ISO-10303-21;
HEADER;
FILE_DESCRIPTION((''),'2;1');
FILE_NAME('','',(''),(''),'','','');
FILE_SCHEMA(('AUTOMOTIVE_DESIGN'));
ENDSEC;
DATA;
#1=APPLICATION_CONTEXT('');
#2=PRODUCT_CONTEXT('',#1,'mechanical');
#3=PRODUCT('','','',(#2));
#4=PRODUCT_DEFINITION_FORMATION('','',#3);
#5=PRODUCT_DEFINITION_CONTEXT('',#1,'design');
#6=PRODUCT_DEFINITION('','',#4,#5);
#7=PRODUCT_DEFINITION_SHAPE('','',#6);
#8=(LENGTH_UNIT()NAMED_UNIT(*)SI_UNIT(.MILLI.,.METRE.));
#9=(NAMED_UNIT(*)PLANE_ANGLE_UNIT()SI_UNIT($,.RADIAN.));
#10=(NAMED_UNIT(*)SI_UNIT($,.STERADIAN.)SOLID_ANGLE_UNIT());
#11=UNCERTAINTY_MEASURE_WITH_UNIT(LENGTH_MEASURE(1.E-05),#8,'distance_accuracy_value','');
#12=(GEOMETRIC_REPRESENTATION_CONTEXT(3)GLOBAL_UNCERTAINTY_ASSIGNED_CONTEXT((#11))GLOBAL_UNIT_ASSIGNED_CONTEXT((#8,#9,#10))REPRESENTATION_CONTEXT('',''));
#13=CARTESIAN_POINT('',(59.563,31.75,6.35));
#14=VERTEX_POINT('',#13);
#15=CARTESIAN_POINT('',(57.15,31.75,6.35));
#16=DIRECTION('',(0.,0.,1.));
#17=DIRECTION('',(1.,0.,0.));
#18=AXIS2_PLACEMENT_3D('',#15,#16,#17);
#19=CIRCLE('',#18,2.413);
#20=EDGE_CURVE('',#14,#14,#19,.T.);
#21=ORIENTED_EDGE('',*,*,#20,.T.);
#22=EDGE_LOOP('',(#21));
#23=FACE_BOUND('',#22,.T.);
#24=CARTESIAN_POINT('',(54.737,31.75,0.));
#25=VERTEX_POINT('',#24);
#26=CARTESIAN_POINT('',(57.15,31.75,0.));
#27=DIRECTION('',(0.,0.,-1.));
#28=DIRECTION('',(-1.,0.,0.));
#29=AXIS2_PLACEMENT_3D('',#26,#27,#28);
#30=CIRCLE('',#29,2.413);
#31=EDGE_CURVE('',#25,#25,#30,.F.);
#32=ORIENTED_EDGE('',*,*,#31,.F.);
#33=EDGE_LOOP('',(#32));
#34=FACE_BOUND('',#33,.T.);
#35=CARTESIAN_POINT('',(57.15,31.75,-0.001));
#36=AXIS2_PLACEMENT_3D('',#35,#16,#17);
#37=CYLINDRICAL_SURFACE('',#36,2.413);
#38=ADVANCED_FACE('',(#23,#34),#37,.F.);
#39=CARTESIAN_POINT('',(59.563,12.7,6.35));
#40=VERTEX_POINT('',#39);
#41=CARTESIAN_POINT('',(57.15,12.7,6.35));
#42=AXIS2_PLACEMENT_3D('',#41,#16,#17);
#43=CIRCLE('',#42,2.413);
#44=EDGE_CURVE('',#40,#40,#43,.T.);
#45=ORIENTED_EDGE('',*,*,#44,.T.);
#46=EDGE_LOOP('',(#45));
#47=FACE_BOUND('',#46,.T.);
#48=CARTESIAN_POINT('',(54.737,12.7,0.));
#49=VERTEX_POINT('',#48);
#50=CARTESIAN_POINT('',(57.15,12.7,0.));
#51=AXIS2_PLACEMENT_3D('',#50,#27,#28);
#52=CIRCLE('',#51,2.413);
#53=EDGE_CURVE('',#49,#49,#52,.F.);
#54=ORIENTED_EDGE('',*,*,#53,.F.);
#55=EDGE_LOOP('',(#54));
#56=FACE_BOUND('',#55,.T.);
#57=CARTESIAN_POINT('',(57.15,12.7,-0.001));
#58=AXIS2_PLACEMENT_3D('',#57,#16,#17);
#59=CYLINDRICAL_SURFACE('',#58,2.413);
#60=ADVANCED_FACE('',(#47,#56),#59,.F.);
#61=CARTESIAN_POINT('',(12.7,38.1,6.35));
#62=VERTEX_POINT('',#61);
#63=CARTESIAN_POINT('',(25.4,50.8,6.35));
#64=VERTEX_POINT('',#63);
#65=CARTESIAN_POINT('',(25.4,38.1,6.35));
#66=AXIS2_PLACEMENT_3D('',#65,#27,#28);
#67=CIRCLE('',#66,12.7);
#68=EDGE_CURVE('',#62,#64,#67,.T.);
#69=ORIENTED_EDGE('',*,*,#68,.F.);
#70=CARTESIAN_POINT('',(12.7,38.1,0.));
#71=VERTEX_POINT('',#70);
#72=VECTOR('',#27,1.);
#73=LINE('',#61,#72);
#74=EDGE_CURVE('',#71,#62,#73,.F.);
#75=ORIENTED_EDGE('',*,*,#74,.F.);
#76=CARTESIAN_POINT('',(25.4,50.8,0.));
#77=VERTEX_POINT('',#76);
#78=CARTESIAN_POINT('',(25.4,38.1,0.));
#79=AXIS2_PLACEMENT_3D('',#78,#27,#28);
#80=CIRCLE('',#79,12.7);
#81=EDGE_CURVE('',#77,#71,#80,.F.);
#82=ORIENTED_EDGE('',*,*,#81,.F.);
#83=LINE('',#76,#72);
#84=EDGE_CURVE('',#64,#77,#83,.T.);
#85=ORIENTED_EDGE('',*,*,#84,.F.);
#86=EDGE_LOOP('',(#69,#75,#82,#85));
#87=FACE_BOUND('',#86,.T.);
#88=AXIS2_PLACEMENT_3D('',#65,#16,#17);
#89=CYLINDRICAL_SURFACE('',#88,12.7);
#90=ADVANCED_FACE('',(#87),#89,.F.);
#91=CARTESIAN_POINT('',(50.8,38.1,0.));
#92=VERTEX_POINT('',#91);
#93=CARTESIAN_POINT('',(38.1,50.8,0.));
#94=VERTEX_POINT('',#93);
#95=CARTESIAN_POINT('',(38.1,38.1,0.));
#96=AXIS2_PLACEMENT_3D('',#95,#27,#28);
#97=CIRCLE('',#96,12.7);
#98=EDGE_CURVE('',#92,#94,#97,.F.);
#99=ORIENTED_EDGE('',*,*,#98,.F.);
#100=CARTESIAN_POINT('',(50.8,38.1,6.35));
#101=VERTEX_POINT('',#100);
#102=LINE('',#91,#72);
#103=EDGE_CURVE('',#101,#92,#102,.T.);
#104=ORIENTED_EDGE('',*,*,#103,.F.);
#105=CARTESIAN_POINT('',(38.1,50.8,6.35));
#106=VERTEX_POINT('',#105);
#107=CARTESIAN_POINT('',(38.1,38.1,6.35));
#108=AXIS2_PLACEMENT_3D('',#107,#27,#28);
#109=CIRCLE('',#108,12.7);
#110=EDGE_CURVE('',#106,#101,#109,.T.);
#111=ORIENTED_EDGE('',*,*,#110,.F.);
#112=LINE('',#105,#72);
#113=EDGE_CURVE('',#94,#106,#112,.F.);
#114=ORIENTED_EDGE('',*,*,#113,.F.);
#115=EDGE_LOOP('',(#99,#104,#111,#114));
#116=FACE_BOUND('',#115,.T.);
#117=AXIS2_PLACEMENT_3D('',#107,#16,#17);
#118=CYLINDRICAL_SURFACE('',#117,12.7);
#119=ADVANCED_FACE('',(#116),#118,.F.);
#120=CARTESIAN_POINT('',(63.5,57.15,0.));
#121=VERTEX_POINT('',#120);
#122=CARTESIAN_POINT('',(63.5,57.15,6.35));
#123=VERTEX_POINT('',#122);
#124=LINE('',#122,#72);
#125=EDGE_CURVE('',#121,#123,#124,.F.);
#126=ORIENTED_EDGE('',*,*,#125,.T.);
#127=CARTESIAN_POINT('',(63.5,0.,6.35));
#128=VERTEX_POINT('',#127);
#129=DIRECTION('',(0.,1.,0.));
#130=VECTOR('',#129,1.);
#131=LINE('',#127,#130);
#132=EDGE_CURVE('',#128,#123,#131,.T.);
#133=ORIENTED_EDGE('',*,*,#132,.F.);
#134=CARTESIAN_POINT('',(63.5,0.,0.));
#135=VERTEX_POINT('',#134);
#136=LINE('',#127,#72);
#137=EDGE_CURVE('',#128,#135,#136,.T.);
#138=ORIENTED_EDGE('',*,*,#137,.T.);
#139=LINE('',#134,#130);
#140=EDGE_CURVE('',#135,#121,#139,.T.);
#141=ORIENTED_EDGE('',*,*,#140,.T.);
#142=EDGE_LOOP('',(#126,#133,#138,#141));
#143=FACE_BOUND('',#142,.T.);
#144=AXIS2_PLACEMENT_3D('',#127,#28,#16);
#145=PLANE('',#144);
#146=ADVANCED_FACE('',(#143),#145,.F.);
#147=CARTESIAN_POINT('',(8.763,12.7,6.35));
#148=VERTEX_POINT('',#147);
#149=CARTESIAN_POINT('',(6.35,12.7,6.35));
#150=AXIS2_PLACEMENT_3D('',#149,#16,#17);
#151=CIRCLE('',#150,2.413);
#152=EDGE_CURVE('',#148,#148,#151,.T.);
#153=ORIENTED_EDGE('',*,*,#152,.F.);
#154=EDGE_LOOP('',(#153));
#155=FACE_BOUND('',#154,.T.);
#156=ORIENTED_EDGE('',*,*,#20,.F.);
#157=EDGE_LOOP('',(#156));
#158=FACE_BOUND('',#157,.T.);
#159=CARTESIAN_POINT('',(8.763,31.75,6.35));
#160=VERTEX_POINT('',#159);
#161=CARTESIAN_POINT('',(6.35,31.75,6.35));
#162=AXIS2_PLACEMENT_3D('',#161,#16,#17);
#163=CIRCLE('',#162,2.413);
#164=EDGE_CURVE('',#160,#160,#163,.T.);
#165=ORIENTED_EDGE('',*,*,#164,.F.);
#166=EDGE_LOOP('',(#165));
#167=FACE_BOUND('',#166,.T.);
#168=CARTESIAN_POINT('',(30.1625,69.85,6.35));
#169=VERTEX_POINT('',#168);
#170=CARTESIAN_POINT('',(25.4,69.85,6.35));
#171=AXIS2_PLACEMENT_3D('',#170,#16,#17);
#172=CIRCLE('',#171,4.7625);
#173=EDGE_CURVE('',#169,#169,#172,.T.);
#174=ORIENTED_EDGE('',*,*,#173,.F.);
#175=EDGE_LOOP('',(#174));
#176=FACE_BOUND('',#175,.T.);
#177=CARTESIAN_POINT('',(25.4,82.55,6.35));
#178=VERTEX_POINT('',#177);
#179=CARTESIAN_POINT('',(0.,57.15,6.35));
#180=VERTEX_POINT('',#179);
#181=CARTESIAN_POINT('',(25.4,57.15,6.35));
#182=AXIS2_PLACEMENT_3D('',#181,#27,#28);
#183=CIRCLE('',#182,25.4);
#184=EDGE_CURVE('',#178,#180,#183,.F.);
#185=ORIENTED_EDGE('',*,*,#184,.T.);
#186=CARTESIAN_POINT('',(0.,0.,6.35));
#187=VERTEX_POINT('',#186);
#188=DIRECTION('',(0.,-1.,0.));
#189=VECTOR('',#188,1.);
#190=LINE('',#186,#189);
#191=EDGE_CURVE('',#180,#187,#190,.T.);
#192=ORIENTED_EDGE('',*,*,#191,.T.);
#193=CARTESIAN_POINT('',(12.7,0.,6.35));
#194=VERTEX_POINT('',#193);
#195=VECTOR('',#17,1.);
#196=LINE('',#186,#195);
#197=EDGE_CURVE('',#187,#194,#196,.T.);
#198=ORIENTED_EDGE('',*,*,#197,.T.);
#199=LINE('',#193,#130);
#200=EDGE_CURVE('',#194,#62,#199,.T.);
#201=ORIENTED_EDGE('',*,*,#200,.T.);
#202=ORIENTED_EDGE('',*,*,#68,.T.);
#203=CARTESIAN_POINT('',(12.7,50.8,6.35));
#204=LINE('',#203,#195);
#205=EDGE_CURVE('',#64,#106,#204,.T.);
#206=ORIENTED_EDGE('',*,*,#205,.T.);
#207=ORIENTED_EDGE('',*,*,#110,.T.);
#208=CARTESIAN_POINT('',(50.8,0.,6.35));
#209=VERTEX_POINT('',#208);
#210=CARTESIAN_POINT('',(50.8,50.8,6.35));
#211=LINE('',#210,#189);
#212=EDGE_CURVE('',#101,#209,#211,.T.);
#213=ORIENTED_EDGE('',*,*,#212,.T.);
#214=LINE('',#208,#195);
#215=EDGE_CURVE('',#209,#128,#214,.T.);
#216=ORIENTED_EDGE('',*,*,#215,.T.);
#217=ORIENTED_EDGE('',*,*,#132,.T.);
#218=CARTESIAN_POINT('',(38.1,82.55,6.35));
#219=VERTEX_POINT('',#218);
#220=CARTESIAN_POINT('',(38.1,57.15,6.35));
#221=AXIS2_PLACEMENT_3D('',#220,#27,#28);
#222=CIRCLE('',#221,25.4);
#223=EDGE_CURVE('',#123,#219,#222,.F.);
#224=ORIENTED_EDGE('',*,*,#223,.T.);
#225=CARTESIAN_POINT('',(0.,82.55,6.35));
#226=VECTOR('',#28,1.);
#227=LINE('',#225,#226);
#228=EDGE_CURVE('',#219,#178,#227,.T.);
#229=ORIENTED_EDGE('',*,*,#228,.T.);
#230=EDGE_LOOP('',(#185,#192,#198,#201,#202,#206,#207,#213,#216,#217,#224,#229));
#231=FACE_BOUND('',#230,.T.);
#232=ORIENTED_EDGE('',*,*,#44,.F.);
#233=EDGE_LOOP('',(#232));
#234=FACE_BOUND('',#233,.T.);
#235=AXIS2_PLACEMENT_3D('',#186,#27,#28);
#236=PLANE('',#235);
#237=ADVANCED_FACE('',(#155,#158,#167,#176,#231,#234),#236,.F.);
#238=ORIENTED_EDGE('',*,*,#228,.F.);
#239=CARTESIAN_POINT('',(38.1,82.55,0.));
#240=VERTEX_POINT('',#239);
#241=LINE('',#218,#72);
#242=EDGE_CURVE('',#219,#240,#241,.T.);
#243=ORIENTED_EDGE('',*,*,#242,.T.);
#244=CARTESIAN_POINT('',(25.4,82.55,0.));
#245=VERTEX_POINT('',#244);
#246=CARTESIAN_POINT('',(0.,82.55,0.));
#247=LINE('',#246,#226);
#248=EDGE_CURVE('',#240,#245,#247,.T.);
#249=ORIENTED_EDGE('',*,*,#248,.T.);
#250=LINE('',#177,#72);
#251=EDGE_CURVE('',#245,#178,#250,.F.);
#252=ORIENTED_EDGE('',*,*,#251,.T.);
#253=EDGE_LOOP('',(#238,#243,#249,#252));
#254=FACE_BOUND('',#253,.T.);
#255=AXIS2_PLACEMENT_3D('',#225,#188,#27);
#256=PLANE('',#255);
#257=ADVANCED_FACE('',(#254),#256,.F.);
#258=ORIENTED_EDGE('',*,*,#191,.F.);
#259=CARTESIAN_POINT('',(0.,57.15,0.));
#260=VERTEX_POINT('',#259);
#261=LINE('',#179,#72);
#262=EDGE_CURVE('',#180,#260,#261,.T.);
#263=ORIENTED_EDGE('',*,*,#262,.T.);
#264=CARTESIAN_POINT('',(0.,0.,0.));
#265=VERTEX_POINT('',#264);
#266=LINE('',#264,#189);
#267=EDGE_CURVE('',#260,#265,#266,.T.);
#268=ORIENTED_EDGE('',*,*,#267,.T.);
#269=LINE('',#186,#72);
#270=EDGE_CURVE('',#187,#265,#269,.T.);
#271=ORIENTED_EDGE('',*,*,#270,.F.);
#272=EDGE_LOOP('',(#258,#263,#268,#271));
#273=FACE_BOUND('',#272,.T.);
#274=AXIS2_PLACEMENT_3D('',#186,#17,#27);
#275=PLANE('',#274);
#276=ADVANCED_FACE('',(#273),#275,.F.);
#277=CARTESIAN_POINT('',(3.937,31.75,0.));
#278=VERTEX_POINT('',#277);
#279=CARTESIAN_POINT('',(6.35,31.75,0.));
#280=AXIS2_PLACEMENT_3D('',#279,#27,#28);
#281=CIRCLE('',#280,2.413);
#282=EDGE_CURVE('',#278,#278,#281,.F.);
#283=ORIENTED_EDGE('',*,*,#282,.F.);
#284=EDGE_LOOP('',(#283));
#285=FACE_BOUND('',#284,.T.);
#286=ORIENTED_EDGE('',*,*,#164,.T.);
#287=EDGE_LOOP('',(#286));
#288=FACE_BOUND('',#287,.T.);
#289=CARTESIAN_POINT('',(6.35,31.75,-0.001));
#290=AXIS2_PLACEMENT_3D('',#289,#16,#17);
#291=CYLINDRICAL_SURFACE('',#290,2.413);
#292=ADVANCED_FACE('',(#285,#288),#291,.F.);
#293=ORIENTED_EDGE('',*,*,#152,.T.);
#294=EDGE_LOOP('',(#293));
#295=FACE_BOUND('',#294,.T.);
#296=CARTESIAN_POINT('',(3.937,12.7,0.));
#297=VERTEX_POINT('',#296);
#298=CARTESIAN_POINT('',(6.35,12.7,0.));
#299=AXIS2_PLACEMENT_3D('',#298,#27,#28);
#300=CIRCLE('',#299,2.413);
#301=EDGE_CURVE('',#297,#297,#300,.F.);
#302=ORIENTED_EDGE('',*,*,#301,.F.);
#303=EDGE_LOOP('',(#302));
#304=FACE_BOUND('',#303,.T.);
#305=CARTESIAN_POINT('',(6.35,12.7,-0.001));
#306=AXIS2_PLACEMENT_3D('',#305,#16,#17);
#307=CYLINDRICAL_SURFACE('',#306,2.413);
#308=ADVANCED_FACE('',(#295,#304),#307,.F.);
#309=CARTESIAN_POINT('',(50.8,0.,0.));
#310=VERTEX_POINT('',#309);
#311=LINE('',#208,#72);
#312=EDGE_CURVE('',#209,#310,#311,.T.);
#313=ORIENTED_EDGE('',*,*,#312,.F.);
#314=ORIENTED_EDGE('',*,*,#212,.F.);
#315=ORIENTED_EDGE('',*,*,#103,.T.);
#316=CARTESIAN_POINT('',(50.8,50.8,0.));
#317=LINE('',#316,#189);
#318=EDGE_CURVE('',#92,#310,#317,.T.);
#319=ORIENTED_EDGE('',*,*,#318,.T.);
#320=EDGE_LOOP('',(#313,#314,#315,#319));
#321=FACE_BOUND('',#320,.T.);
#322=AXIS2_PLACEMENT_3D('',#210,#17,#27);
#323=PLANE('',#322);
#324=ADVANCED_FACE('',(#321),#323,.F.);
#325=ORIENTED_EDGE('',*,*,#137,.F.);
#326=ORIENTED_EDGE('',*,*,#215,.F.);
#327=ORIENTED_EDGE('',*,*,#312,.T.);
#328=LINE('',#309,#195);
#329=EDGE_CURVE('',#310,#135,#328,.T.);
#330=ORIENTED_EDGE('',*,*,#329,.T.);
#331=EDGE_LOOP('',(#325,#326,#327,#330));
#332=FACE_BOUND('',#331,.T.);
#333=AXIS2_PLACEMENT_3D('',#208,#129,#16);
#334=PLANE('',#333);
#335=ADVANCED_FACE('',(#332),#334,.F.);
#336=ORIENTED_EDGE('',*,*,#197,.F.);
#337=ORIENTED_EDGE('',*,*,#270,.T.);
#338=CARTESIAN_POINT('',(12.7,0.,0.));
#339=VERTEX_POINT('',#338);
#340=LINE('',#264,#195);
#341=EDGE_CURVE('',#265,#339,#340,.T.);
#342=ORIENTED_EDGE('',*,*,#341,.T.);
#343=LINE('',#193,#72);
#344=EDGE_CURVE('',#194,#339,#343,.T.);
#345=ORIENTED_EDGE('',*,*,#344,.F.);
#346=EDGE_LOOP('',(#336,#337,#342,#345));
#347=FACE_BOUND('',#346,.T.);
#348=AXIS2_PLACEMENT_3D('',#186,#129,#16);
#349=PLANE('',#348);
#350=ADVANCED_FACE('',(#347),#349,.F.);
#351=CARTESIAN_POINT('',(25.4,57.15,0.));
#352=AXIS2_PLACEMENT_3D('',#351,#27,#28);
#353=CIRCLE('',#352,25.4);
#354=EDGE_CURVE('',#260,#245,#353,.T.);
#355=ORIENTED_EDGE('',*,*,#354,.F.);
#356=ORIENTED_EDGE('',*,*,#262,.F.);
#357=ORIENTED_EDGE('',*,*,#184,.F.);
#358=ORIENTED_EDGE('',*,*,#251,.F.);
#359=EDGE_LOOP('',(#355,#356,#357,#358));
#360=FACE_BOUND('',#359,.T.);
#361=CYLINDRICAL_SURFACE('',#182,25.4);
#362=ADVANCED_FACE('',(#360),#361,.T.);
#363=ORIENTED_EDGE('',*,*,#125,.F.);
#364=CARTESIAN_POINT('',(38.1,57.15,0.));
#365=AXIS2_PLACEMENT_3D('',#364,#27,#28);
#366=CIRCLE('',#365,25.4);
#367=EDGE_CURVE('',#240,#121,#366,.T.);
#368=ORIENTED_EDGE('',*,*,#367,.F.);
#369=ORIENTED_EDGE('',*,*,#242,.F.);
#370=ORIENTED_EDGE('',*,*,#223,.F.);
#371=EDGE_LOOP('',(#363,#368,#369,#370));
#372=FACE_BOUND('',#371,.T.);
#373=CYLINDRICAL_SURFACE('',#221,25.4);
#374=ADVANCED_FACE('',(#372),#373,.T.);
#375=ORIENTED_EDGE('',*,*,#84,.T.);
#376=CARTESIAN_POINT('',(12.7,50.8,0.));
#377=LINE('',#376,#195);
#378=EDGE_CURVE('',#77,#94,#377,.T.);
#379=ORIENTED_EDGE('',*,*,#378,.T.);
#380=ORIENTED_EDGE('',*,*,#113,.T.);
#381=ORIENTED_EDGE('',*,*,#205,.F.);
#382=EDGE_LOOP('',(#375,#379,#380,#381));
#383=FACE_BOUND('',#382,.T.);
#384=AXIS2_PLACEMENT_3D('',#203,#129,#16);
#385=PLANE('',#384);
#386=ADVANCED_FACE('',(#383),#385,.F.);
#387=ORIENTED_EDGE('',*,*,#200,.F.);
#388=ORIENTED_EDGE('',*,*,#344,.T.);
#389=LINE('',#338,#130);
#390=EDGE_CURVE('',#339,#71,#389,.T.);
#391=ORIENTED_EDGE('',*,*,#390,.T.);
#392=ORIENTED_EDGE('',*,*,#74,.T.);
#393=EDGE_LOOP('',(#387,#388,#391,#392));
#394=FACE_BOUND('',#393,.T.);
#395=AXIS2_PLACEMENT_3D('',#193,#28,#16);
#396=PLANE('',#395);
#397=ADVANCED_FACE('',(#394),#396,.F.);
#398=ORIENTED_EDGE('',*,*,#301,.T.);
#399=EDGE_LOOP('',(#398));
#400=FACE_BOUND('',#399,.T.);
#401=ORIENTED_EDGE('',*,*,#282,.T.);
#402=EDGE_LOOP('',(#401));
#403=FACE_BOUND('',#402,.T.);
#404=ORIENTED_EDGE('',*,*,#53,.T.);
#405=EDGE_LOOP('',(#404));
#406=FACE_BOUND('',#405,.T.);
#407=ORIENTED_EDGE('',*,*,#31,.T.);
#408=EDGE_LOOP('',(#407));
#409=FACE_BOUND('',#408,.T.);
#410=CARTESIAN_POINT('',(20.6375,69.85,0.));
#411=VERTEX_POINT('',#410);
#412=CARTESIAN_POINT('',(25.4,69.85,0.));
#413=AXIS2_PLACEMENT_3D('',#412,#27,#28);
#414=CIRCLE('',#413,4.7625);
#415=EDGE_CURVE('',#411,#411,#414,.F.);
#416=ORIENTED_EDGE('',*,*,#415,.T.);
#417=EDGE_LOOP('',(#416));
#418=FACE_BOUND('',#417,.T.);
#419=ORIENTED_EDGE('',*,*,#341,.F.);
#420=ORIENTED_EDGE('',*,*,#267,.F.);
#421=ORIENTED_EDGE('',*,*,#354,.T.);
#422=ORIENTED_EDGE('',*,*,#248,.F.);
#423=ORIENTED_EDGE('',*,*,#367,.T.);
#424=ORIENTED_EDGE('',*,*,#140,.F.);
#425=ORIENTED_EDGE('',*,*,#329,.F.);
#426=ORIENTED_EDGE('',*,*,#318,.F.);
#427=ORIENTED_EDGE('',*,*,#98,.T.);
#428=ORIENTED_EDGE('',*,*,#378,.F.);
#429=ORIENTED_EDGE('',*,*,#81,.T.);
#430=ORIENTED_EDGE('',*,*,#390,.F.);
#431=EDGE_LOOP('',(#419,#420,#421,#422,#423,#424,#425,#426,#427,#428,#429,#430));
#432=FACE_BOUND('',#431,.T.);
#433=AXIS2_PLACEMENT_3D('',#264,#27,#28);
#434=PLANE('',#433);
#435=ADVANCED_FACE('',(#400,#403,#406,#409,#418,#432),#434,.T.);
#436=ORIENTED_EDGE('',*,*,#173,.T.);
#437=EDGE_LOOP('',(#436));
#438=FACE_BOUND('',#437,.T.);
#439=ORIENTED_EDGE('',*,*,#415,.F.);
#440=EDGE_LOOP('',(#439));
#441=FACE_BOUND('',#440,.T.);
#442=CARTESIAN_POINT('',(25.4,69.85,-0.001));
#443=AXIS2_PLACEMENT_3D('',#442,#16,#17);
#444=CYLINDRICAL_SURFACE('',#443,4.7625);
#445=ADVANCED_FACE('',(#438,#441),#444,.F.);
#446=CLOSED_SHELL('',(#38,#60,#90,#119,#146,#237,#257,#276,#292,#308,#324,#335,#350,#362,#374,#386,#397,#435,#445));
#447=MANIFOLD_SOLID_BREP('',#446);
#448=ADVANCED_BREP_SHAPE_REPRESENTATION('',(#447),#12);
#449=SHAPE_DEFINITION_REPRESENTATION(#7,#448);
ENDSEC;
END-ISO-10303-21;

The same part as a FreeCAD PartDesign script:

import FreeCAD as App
import Part
import Sketcher

V = App.Vector
Q = App.Units.Quantity


def edges_at(feature, points):
    """Names of the edges that pass closest to the given points."""
    edges = feature.Shape.Edges
    near = lambda p: min(range(len(edges)), key=lambda i: edges[i].distToShape(Part.Vertex(*p))[0])
    return sorted({f"Edge{near(p) + 1}" for p in points})

doc = App.newDocument("Part")
body = doc.addObject("PartDesign::Body", "Body")

# Sketch on XY plane
sketch1 = body.newObject("Sketcher::SketchObject", "Sketch")
sketch1.AttachmentSupport = (doc.getObject("XY_Plane"), [""])
sketch1.MapMode = "FlatFace"
sketch1.addGeometry([
    Part.LineSegment(V(0, 0, 0), V(12.7, 0, 0)),  # 0
    Part.LineSegment(V(12.7, 0, 0), V(12.7, 50.8, 0)),  # 1
    Part.LineSegment(V(12.7, 50.8, 0), V(50.8, 50.8, 0)),  # 2
    Part.LineSegment(V(50.8, 50.8, 0), V(50.8, 0, 0)),  # 3
    Part.LineSegment(V(50.8, 0, 0), V(63.5, 0, 0)),  # 4
    Part.LineSegment(V(63.5, 0, 0), V(63.5, 82.55, 0)),  # 5
    Part.LineSegment(V(63.5, 82.55, 0), V(0, 82.55, 0)),  # 6
    Part.LineSegment(V(0, 82.55, 0), V(0, 0, 0)),  # 7
], False)
sketch1.addConstraint([
    Sketcher.Constraint("Coincident", 0, 2, 1, 1),
    Sketcher.Constraint("Coincident", 1, 2, 2, 1),
    Sketcher.Constraint("Coincident", 2, 2, 3, 1),
    Sketcher.Constraint("Coincident", 3, 2, 4, 1),
    Sketcher.Constraint("Coincident", 4, 2, 5, 1),
    Sketcher.Constraint("Coincident", 5, 2, 6, 1),
    Sketcher.Constraint("Coincident", 6, 2, 7, 1),
    Sketcher.Constraint("Coincident", 7, 2, 0, 1),
    Sketcher.Constraint("Horizontal", 0),
    Sketcher.Constraint("Vertical", 1),
    Sketcher.Constraint("Horizontal", 2),
    Sketcher.Constraint("Vertical", 3),
    Sketcher.Constraint("Horizontal", 4),
    Sketcher.Constraint("Vertical", 5),
    Sketcher.Constraint("Horizontal", 6),
    Sketcher.Constraint("Vertical", 7),
    Sketcher.Constraint("Coincident", 7, 2, -1, 1),
    Sketcher.Constraint("PointOnObject", 3, 2, -1),
    Sketcher.Constraint("Equal", 0, 4),
    Sketcher.Constraint("DistanceY", 1, 1, 1, 2, Q("2 in")),
    Sketcher.Constraint("DistanceX", 0, 1, 0, 2, Q("0.5 in")),
    Sketcher.Constraint("DistanceX", 2, 1, 2, 2, Q("1.5 in")),
    Sketcher.Constraint("DistanceY", 5, 1, 5, 2, Q("3.25 in")),
])
pad1 = body.newObject("PartDesign::Pad", "Pad")
pad1.Profile = sketch1
pad1.Length = Q("0.25 in")

# Sketch on XY plane
sketch2 = body.newObject("Sketcher::SketchObject", "Sketch001")
sketch2.AttachmentSupport = (doc.getObject("XY_Plane"), [""])
sketch2.MapMode = "FlatFace"
sketch2.AttachmentOffset = App.Placement(V(0, 0, 0.25 * 25.4), App.Rotation())
sketch2.addGeometry(Part.Circle(V(6.35, 12.7, 0), V(0, 0, 1), 2.413), False)
sketch2.addConstraint([
    Sketcher.Constraint("Diameter", 0, Q("0.19 in")),
    Sketcher.Constraint("DistanceY", -1, 1, 0, 3, Q("0.5 in")),
    Sketcher.Constraint("DistanceX", -1, 1, 0, 3, Q("0.25 in")),
])
pocket1 = body.newObject("PartDesign::Pocket", "Pocket")
pocket1.Profile = sketch2
pocket1.Type = "UpToFirst"

# Sketch on XY plane
sketch3 = body.newObject("Sketcher::SketchObject", "Sketch002")
sketch3.AttachmentSupport = (doc.getObject("XY_Plane"), [""])
sketch3.MapMode = "FlatFace"
sketch3.AttachmentOffset = App.Placement(V(0, 0, 0.25 * 25.4), App.Rotation())
sketch3.addGeometry(Part.Circle(V(6.35, 31.75, 0), V(0, 0, 1), 2.413), False)
sketch3.addConstraint([
    Sketcher.Constraint("Diameter", 0, Q("0.19 in")),
    Sketcher.Constraint("DistanceX", -1, 1, 0, 3, Q("0.25 in")),
    Sketcher.Constraint("DistanceY", -1, 1, 0, 3, Q("1.25 in")),
])
pocket2 = body.newObject("PartDesign::Pocket", "Pocket001")
pocket2.Profile = sketch3
pocket2.Type = "UpToFirst"

# Sketch on XY plane
sketch4 = body.newObject("Sketcher::SketchObject", "Sketch003")
sketch4.AttachmentSupport = (doc.getObject("XY_Plane"), [""])
sketch4.MapMode = "FlatFace"
sketch4.AttachmentOffset = App.Placement(V(0, 0, 0.25 * 25.4), App.Rotation())
sketch4.addGeometry(Part.Circle(V(57.15, 12.7, 0), V(0, 0, 1), 2.413), False)
sketch4.addConstraint([
    Sketcher.Constraint("Diameter", 0, Q("0.19 in")),
    Sketcher.Constraint("DistanceY", -1, 1, 0, 3, Q("0.5 in")),
    Sketcher.Constraint("DistanceX", -1, 1, 0, 3, Q("2.25 in")),
])
pocket3 = body.newObject("PartDesign::Pocket", "Pocket002")
pocket3.Profile = sketch4
pocket3.Type = "UpToFirst"

# Sketch on XY plane
sketch5 = body.newObject("Sketcher::SketchObject", "Sketch004")
sketch5.AttachmentSupport = (doc.getObject("XY_Plane"), [""])
sketch5.MapMode = "FlatFace"
sketch5.AttachmentOffset = App.Placement(V(0, 0, 0.25 * 25.4), App.Rotation())
sketch5.addGeometry(Part.Circle(V(57.15, 31.75, 0), V(0, 0, 1), 2.413), False)
sketch5.addConstraint([
    Sketcher.Constraint("Diameter", 0, Q("0.19 in")),
    Sketcher.Constraint("DistanceX", -1, 1, 0, 3, Q("2.25 in")),
    Sketcher.Constraint("DistanceY", -1, 1, 0, 3, Q("1.25 in")),
])
pocket4 = body.newObject("PartDesign::Pocket", "Pocket003")
pocket4.Profile = sketch5
pocket4.Type = "UpToFirst"

# Sketch on XY plane
sketch6 = body.newObject("Sketcher::SketchObject", "Sketch005")
sketch6.AttachmentSupport = (doc.getObject("XY_Plane"), [""])
sketch6.MapMode = "FlatFace"
sketch6.AttachmentOffset = App.Placement(V(0, 0, 0.25 * 25.4), App.Rotation())
sketch6.addGeometry(Part.Circle(V(25.4, 69.85, 0), V(0, 0, 1), 4.7625), False)
sketch6.addConstraint([
    Sketcher.Constraint("Diameter", 0, Q("0.375 in")),
    Sketcher.Constraint("DistanceX", -1, 1, 0, 3, Q("1 in")),
    Sketcher.Constraint("DistanceY", -1, 1, 0, 3, Q("2.75 in")),
])
pocket5 = body.newObject("PartDesign::Pocket", "Pocket004")
pocket5.Profile = sketch6
pocket5.Type = "UpToFirst"
doc.recompute()

fillet = body.newObject("PartDesign::Fillet", "Fillet")
fillet.Base = (pocket5, edges_at(pocket5, [(50.8, 50.8, 3.175), (12.7, 50.8, 3.175)]))
fillet.Radius = Q("0.5 in")
doc.recompute()

fillet2 = body.newObject("PartDesign::Fillet", "Fillet001")
fillet2.Base = (fillet, edges_at(fillet, [(0, 82.55, 3.175), (63.5, 82.55, 3.175)]))
fillet2.Radius = Q("1 in")

doc.recompute()
